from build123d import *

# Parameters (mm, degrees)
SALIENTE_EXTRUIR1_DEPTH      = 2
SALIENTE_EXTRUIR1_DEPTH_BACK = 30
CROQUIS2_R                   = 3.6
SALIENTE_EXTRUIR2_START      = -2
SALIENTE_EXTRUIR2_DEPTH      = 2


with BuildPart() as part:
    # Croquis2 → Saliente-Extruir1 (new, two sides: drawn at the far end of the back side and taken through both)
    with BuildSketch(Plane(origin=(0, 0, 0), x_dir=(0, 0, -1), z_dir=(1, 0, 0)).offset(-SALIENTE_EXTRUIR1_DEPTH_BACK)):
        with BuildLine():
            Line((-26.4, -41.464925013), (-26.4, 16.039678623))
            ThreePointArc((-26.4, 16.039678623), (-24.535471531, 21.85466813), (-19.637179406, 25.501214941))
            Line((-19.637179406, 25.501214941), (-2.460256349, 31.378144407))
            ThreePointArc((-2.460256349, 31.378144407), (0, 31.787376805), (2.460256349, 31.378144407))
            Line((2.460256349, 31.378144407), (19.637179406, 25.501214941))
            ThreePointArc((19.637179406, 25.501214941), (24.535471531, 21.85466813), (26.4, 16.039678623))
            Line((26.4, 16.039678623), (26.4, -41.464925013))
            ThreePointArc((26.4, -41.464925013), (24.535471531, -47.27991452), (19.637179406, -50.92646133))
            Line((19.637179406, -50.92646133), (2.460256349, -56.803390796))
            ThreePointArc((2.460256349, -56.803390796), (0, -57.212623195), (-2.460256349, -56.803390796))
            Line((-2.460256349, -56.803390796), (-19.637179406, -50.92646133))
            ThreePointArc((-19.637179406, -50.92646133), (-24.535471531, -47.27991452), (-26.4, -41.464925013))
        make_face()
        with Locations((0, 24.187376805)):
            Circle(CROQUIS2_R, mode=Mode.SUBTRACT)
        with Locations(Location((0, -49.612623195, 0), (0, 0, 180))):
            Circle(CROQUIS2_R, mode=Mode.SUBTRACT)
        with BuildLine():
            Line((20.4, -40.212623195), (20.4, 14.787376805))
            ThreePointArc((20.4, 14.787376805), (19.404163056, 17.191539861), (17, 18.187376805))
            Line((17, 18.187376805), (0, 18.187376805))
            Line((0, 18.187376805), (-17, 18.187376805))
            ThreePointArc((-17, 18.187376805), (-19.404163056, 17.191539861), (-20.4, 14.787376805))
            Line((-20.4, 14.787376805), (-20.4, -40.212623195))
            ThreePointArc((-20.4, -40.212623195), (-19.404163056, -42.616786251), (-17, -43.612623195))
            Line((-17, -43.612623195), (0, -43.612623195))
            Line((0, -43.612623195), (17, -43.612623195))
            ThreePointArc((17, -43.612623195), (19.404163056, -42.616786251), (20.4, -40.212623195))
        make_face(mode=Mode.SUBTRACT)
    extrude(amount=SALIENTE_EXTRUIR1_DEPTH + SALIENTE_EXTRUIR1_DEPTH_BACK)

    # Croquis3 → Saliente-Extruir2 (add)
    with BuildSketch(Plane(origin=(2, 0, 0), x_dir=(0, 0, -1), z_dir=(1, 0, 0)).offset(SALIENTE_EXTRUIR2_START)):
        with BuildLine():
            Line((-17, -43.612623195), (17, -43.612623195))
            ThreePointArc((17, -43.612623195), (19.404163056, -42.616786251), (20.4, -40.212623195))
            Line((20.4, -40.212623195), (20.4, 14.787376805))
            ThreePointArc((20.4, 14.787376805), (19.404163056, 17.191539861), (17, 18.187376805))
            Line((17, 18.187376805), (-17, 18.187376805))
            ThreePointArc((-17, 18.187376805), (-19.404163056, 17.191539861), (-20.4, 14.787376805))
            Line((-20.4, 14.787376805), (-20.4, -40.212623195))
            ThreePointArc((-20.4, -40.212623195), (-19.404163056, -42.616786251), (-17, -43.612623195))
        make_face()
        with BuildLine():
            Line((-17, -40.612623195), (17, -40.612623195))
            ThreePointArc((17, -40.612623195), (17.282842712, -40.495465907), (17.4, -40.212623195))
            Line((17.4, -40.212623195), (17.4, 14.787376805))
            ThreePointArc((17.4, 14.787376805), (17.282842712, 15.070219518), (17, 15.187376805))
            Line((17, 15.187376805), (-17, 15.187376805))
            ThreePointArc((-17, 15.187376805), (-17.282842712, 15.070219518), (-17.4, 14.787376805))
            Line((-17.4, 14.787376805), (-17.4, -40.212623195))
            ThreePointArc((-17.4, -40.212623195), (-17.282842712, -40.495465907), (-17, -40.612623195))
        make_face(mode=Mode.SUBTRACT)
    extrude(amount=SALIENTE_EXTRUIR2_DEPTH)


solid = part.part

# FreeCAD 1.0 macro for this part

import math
import FreeCAD as App
import Part
import Sketcher
from FreeCAD import Vector

doc = App.newDocument("Part")
body = doc.addObject("PartDesign::Body", "Body")

sketch1 = body.newObject("Sketcher::SketchObject", "Sketch")
sketch1.AttachmentSupport = (doc.getObject("YZ_Plane"), [""])
sketch1.MapMode = "FlatFace"
sketch1.addGeometry([
    Part.LineSegment(Vector(16, 26.4, 0), Vector(-41.5, 26.4, 0)),
    Part.ArcOfCircle(Part.Circle(Vector(-41.5, 16.4, 0), Vector(0, 0, 1), 10), math.radians(90), math.radians(161)),
    Part.LineSegment(Vector(-50.9, 19.6, 0), Vector(-56.8, 2.5, 0)),
    Part.ArcOfCircle(Part.Circle(Vector(-49.6, 0, 0), Vector(0, 0, 1), 7.6), math.radians(161), math.radians(199)),
    Part.LineSegment(Vector(-56.8, -2.5, 0), Vector(-50.9, -19.6, 0)),
    Part.ArcOfCircle(Part.Circle(Vector(-41.5, -16.4, 0), Vector(0, 0, 1), 10), math.radians(-161), math.radians(-90)),
    Part.LineSegment(Vector(-41.5, -26.4, 0), Vector(16, -26.4, 0)),
    Part.ArcOfCircle(Part.Circle(Vector(16, -16.4, 0), Vector(0, 0, 1), 10), math.radians(-90), math.radians(-19)),
    Part.LineSegment(Vector(25.5, -19.6, 0), Vector(31.4, -2.5, 0)),
    Part.ArcOfCircle(Part.Circle(Vector(24.2, 0, 0), Vector(0, 0, 1), 7.6), math.radians(-19), math.radians(19)),
    Part.LineSegment(Vector(31.4, 2.5, 0), Vector(25.5, 19.6, 0)),
    Part.ArcOfCircle(Part.Circle(Vector(16, 16.4, 0), Vector(0, 0, 1), 10), math.radians(19), math.radians(90)),
    Part.Circle(Vector(-49.6, 0, 0), Vector(0, 0, 1), 3.6),
    Part.ArcOfCircle(Part.Circle(Vector(-40.2, -17, 0), Vector(0, 0, 1), 3.4), math.radians(180), math.radians(270)),
    Part.LineSegment(Vector(-43.6, -17, 0), Vector(-43.6, 17, 0)),
    Part.ArcOfCircle(Part.Circle(Vector(-40.2, 17, 0), Vector(0, 0, 1), 3.4), math.radians(90), math.radians(180)),
    Part.LineSegment(Vector(-40.2, 20.4, 0), Vector(14.8, 20.4, 0)),
    Part.ArcOfCircle(Part.Circle(Vector(14.8, 17, 0), Vector(0, 0, 1), 3.4), math.radians(0), math.radians(90)),
    Part.LineSegment(Vector(18.2, 17, 0), Vector(18.2, -17, 0)),
    Part.ArcOfCircle(Part.Circle(Vector(14.8, -17, 0), Vector(0, 0, 1), 3.4), math.radians(-90), math.radians(0)),
    Part.LineSegment(Vector(14.8, -20.4, 0), Vector(-40.2, -20.4, 0)),
    Part.Circle(Vector(24.2, 0, 0), Vector(0, 0, 1), 3.6),
], False)
sketch1.addConstraint([
    Sketcher.Constraint("Tangent", 0, 2, 1, 1),
    Sketcher.Constraint("Tangent", 1, 2, 2, 1),
    Sketcher.Constraint("Tangent", 2, 2, 3, 1),
    Sketcher.Constraint("Tangent", 3, 2, 4, 1),
    Sketcher.Constraint("Tangent", 4, 2, 5, 1),
    Sketcher.Constraint("Tangent", 5, 2, 6, 1),
    Sketcher.Constraint("Tangent", 6, 2, 7, 1),
    Sketcher.Constraint("Tangent", 7, 2, 8, 1),
    Sketcher.Constraint("Tangent", 8, 2, 9, 1),
    Sketcher.Constraint("Tangent", 9, 2, 10, 1),
    Sketcher.Constraint("Tangent", 10, 2, 11, 1),
    Sketcher.Constraint("Tangent", 11, 2, 0, 1),
    Sketcher.Constraint("Tangent", 13, 1, 14, 1),
    Sketcher.Constraint("Tangent", 14, 2, 15, 2),
    Sketcher.Constraint("Tangent", 15, 1, 16, 1),
    Sketcher.Constraint("Tangent", 16, 2, 17, 2),
    Sketcher.Constraint("Tangent", 17, 1, 18, 1),
    Sketcher.Constraint("Tangent", 18, 2, 19, 2),
    Sketcher.Constraint("Tangent", 19, 1, 20, 1),
    Sketcher.Constraint("Tangent", 20, 2, 13, 2),
    Sketcher.Constraint("Horizontal", 0),
    Sketcher.Constraint("Horizontal", 6),
    Sketcher.Constraint("Vertical", 14),
    Sketcher.Constraint("Horizontal", 16),
    Sketcher.Constraint("Vertical", 18),
    Sketcher.Constraint("Horizontal", 20),
    Sketcher.Constraint("Coincident", 12, 3, 3, 3),
    Sketcher.Constraint("Coincident", 21, 3, 9, 3),
    Sketcher.Constraint("Equal", 1, 5),
    Sketcher.Constraint("Equal", 5, 7),
    Sketcher.Constraint("Equal", 3, 9),
    Sketcher.Constraint("Equal", 7, 11),
    Sketcher.Constraint("Equal", 13, 15),
    Sketcher.Constraint("Equal", 15, 17),
    Sketcher.Constraint("Equal", 17, 19),
    Sketcher.Constraint("Equal", 12, 21),
    Sketcher.Constraint("Symmetric", 1, 3, 5, 3, -1),
    Sketcher.Constraint("Symmetric", 8, 2, 9, 2, -1),
    Sketcher.Constraint("PointOnObject", 3, 3, -1),
    Sketcher.Constraint("Parallel", 2, 8),
    Sketcher.Constraint("Radius", 1, 10.0),
    Sketcher.Constraint("Diameter", 12, 7.2),
    Sketcher.Constraint("Radius", 3, 7.6),
    Sketcher.Constraint("Radius", 13, 3.4),
    Sketcher.Constraint("DistanceX", 16, 1, 16, 2, 55.0),
    Sketcher.Constraint("DistanceY", 14, 1, 14, 2, 34.0),
    Sketcher.Constraint("DistanceY", 13, 3, -1, 1, 17.0),
    Sketcher.Constraint("DistanceX", 12, 3, 13, 1, 6.0),
    Sketcher.Constraint("DistanceY", 1, 3, 15, 1, 4.0),
    Sketcher.Constraint("DistanceX", 18, 2, 9, 3, 6.0),
    Sketcher.Constraint("DistanceX", 3, 3, 1, 3, 8.147698),
    Sketcher.Constraint("DistanceX", -1, 1, 7, 3, 16.039679),
])
pad1 = body.newObject("PartDesign::Pad", "Pad")
pad1.Profile = sketch1
pad1.Type = "TwoLengths"
pad1.Length = 2
pad1.Length2 = 30

sketch2 = body.newObject("Sketcher::SketchObject", "Sketch001")
sketch2.AttachmentSupport = (doc.getObject("YZ_Plane"), [""])
sketch2.MapMode = "FlatFace"
sketch2.addGeometry([
    Part.LineSegment(Vector(-43.61, 17, 0), Vector(-43.61, -17, 0)),
    Part.ArcOfCircle(Part.Circle(Vector(-40.21, -17, 0), Vector(0, 0, 1), 3.4), math.radians(180), math.radians(270)),
    Part.LineSegment(Vector(-40.21, -20.4, 0), Vector(14.79, -20.4, 0)),
    Part.ArcOfCircle(Part.Circle(Vector(14.79, -17, 0), Vector(0, 0, 1), 3.4), math.radians(-90), math.radians(0)),
    Part.LineSegment(Vector(18.19, -17, 0), Vector(18.19, 17, 0)),
    Part.ArcOfCircle(Part.Circle(Vector(14.79, 17, 0), Vector(0, 0, 1), 3.4), math.radians(0), math.radians(90)),
    Part.LineSegment(Vector(14.79, 20.4, 0), Vector(-40.21, 20.4, 0)),
    Part.ArcOfCircle(Part.Circle(Vector(-40.21, 17, 0), Vector(0, 0, 1), 3.4), math.radians(90), math.radians(180)),
    Part.LineSegment(Vector(-40.61, -17, 0), Vector(-40.61, 17, 0)),
    Part.ArcOfCircle(Part.Circle(Vector(-40.21, 17, 0), Vector(0, 0, 1), 0.4), math.radians(90), math.radians(180)),
    Part.LineSegment(Vector(-40.21, 17.4, 0), Vector(14.79, 17.4, 0)),
    Part.ArcOfCircle(Part.Circle(Vector(14.79, 17, 0), Vector(0, 0, 1), 0.4), math.radians(0), math.radians(90)),
    Part.LineSegment(Vector(15.19, 17, 0), Vector(15.19, -17, 0)),
    Part.ArcOfCircle(Part.Circle(Vector(14.79, -17, 0), Vector(0, 0, 1), 0.4), math.radians(-90), math.radians(0)),
    Part.LineSegment(Vector(14.79, -17.4, 0), Vector(-40.21, -17.4, 0)),
    Part.ArcOfCircle(Part.Circle(Vector(-40.21, -17, 0), Vector(0, 0, 1), 0.4), math.radians(-180), math.radians(-90)),
], False)
sketch2.addConstraint([
    Sketcher.Constraint("Tangent", 0, 2, 1, 1),
    Sketcher.Constraint("Tangent", 1, 2, 2, 1),
    Sketcher.Constraint("Tangent", 2, 2, 3, 1),
    Sketcher.Constraint("Tangent", 3, 2, 4, 1),
    Sketcher.Constraint("Tangent", 4, 2, 5, 1),
    Sketcher.Constraint("Tangent", 5, 2, 6, 1),
    Sketcher.Constraint("Tangent", 6, 2, 7, 1),
    Sketcher.Constraint("Tangent", 7, 2, 0, 1),
    Sketcher.Constraint("Tangent", 8, 2, 9, 2),
    Sketcher.Constraint("Tangent", 9, 1, 10, 1),
    Sketcher.Constraint("Tangent", 10, 2, 11, 2),
    Sketcher.Constraint("Tangent", 11, 1, 12, 1),
    Sketcher.Constraint("Tangent", 12, 2, 13, 2),
    Sketcher.Constraint("Tangent", 13, 1, 14, 1),
    Sketcher.Constraint("Tangent", 14, 2, 15, 2),
    Sketcher.Constraint("Tangent", 15, 1, 8, 1),
    Sketcher.Constraint("Vertical", 0),
    Sketcher.Constraint("Horizontal", 2),
    Sketcher.Constraint("Vertical", 4),
    Sketcher.Constraint("Horizontal", 6),
    Sketcher.Constraint("Vertical", 8),
    Sketcher.Constraint("Horizontal", 10),
    Sketcher.Constraint("Vertical", 12),
    Sketcher.Constraint("Horizontal", 14),
    Sketcher.Constraint("Coincident", 9, 3, 7, 3),
    Sketcher.Constraint("Coincident", 11, 3, 5, 3),
    Sketcher.Constraint("Coincident", 13, 3, 3, 3),
    Sketcher.Constraint("Equal", 1, 3),
    Sketcher.Constraint("Equal", 3, 5),
    Sketcher.Constraint("Equal", 5, 7),
    Sketcher.Constraint("Equal", 13, 15),
    Sketcher.Constraint("Radius", 1, 3.4),
    Sketcher.Constraint("Radius", 9, 0.4),
    Sketcher.Constraint("DistanceX", 2, 1, 2, 2, 55.0),
    Sketcher.Constraint("DistanceY", 0, 2, 0, 1, 34.0),
    Sketcher.Constraint("DistanceY", 1, 3, -1, 1, 17.0),
    Sketcher.Constraint("DistanceX", 1, 3, -1, 1, 40.212623),
])
pad2 = body.newObject("PartDesign::Pad", "Pad001")
pad2.Profile = sketch2
pad2.Length = 2

doc.recompute()
